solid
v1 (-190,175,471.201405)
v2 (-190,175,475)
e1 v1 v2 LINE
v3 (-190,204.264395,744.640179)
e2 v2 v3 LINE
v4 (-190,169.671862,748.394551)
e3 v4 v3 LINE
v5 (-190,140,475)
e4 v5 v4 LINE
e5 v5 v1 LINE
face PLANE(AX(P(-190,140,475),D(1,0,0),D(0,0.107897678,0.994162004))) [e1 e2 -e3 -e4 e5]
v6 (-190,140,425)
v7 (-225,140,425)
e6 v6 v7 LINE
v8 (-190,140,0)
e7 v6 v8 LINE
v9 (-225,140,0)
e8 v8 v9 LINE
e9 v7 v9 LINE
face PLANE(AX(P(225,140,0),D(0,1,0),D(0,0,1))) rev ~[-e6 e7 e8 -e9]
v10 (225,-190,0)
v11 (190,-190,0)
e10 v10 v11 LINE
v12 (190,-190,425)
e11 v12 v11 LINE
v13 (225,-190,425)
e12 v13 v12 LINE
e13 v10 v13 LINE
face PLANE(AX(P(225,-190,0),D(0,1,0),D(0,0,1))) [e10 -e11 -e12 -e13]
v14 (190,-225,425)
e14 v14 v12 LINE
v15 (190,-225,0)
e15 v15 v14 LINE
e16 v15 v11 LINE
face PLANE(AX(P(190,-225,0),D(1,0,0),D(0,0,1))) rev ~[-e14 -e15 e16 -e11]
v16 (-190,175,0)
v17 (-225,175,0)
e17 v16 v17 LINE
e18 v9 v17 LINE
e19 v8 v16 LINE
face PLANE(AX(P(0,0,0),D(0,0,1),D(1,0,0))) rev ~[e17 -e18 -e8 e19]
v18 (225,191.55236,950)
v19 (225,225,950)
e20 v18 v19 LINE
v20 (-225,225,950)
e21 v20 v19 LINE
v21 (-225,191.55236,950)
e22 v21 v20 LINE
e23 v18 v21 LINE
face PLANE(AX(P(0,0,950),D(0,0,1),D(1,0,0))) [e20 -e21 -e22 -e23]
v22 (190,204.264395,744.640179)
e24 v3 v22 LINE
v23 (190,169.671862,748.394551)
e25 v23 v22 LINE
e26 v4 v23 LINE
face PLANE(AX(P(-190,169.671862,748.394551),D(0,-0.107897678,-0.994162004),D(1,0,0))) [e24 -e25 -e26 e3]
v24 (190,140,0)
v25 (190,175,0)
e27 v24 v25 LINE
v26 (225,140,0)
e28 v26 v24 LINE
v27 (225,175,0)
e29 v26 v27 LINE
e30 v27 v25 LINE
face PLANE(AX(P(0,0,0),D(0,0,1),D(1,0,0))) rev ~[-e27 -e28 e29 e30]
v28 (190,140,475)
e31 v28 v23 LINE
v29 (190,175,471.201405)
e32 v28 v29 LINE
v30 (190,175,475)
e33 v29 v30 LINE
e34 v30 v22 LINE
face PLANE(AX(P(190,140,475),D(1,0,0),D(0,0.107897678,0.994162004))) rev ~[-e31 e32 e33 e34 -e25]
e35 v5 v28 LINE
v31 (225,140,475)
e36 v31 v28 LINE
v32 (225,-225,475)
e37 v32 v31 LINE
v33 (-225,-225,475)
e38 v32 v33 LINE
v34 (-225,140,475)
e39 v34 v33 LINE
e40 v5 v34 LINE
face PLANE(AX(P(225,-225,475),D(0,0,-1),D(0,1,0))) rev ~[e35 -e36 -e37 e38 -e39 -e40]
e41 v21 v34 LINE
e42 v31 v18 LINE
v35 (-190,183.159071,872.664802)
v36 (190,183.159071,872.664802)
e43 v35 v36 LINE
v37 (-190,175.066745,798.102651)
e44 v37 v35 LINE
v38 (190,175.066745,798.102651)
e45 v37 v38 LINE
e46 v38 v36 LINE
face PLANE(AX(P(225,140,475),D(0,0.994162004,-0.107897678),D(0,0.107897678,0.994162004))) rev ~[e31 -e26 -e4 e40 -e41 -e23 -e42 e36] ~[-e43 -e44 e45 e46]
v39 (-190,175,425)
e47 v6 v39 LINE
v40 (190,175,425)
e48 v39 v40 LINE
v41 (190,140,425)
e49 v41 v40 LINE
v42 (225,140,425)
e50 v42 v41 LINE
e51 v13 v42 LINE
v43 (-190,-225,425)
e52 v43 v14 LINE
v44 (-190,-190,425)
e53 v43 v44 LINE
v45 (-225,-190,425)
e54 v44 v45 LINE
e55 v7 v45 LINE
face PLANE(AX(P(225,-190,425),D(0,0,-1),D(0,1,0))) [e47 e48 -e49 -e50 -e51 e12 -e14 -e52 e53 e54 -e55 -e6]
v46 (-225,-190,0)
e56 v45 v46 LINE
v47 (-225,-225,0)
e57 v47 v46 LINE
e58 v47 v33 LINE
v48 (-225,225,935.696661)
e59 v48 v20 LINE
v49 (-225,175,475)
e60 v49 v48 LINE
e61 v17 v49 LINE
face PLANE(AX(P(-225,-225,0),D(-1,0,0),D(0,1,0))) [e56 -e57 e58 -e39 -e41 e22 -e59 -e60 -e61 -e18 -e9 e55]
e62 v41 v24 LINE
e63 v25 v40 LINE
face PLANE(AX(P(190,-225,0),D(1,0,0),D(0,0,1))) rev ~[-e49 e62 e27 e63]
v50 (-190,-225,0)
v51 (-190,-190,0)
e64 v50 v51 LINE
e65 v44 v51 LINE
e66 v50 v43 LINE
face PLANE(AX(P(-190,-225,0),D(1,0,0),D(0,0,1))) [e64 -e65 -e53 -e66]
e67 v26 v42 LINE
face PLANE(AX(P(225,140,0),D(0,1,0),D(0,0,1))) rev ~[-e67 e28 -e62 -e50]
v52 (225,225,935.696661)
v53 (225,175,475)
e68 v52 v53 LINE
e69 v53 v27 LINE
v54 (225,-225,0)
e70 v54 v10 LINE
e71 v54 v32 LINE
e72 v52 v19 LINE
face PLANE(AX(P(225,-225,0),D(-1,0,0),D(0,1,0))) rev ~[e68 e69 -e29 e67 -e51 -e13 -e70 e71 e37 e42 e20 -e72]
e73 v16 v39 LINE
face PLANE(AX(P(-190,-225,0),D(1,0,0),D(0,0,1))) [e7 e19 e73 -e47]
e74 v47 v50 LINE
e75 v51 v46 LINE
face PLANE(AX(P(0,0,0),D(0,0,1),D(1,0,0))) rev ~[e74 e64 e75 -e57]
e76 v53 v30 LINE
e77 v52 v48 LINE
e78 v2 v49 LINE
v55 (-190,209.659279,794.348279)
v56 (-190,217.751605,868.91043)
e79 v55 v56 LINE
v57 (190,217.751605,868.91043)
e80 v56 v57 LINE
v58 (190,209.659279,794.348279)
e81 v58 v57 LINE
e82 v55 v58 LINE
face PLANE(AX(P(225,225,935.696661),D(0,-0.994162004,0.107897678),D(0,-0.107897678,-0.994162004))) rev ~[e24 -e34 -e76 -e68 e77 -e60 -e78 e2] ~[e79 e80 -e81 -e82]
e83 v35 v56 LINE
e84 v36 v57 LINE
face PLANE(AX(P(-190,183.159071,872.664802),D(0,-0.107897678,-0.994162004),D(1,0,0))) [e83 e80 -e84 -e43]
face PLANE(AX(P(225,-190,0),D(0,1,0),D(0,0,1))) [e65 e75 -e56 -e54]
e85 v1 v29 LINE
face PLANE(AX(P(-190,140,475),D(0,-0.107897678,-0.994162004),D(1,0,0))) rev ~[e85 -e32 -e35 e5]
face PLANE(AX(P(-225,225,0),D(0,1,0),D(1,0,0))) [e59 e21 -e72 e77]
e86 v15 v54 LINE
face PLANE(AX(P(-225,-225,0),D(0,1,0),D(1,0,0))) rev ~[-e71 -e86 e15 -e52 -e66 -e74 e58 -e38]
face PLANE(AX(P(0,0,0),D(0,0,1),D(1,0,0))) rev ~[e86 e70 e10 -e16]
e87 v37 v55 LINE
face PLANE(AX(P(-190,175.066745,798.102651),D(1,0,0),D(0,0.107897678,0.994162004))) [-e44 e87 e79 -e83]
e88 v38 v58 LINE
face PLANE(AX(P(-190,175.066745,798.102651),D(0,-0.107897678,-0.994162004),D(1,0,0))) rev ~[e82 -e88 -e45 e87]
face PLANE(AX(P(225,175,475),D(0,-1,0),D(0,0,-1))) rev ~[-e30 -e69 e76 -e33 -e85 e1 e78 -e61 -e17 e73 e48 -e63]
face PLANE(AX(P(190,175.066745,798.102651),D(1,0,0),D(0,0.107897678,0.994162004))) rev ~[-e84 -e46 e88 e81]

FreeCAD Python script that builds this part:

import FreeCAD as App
import Part
import Sketcher

V = App.Vector

doc = App.newDocument("Part")
body = doc.addObject("PartDesign::Body", "Body")

# Sketch on XY plane
sketch1 = body.newObject("Sketcher::SketchObject", "Sketch")
sketch1.AttachmentSupport = (doc.getObject("XY_Plane"), [""])
sketch1.MapMode = "FlatFace"
sketch1.addGeometry([
    Part.LineSegment(V(-225, 225, 0), V(-225, -225, 0)),
    Part.LineSegment(V(-225, -225, 0), V(225, -225, 0)),
    Part.LineSegment(V(225, -225, 0), V(225, 225, 0)),
    Part.LineSegment(V(225, 225, 0), V(-225, 225, 0)),
], False)
sketch1.addConstraint([
    Sketcher.Constraint("Coincident", 0, 2, 1, 1),
    Sketcher.Constraint("Coincident", 1, 2, 2, 1),
    Sketcher.Constraint("Coincident", 2, 2, 3, 1),
    Sketcher.Constraint("Coincident", 3, 2, 0, 1),
    Sketcher.Constraint("Vertical", 0),
    Sketcher.Constraint("Horizontal", 1),
    Sketcher.Constraint("Vertical", 2),
    Sketcher.Constraint("Horizontal", 3),
    Sketcher.Constraint("Symmetric", 0, 2, 2, 2, -1, 1),
    Sketcher.Constraint("Equal", 3, 0),
    Sketcher.Constraint("DistanceX", 1, 1, 1, 2, 450.0),
])
pad1 = body.newObject("PartDesign::Pad", "Pad")
pad1.Profile = sketch1
pad1.Length = 950

# Sketch on YZ plane
sketch2 = body.newObject("Sketcher::SketchObject", "Sketch001")
sketch2.AttachmentSupport = (doc.getObject("YZ_Plane"), [""])
sketch2.MapMode = "FlatFace"
sketch2.AttachmentOffset = App.Placement(V(0, 0, 225), App.Rotation())
sketch2.addGeometry([
    Part.LineSegment(V(-225, 950, 0), V(-225, 475, 0)),  # 0
    Part.LineSegment(V(-225, 475, 0), V(140, 475, 0)),  # 1
    Part.LineSegment(V(140, 475, 0), V(192, 950, 0)),  # 2
    Part.LineSegment(V(192, 950, 0), V(-225, 950, 0)),  # 3
    Part.LineSegment(V(225, 936, 0), V(175, 475, 0)),  # 4
    Part.LineSegment(V(175, 475, 0), V(175, 0, 0)),  # 5
    Part.LineSegment(V(175, 0, 0), V(225, 0, 0)),  # 6
    Part.LineSegment(V(225, 0, 0), V(225, 936, 0)),  # 7
    Part.LineSegment(V(-190, 425, 0), V(-190, 0, 0)),  # 8
    Part.LineSegment(V(-190, 0, 0), V(140, 0, 0)),  # 9
    Part.LineSegment(V(140, 0, 0), V(140, 425, 0)),  # 10
    Part.LineSegment(V(140, 425, 0), V(-190, 425, 0)),  # 11
], False)
sketch2.addConstraint([
    Sketcher.Constraint("Coincident", 0, 2, 1, 1),
    Sketcher.Constraint("Coincident", 1, 2, 2, 1),
    Sketcher.Constraint("Coincident", 2, 2, 3, 1),
    Sketcher.Constraint("Coincident", 3, 2, 0, 1),
    Sketcher.Constraint("Coincident", 4, 2, 5, 1),
    Sketcher.Constraint("Coincident", 5, 2, 6, 1),
    Sketcher.Constraint("Coincident", 6, 2, 7, 1),
    Sketcher.Constraint("Coincident", 7, 2, 4, 1),
    Sketcher.Constraint("Coincident", 8, 2, 9, 1),
    Sketcher.Constraint("Coincident", 9, 2, 10, 1),
    Sketcher.Constraint("Coincident", 10, 2, 11, 1),
    Sketcher.Constraint("Coincident", 11, 2, 8, 1),
    Sketcher.Constraint("Vertical", 0),
    Sketcher.Constraint("Horizontal", 1),
    Sketcher.Constraint("Horizontal", 3),
    Sketcher.Constraint("Vertical", 5),
    Sketcher.Constraint("Horizontal", 6),
    Sketcher.Constraint("Vertical", 7),
    Sketcher.Constraint("Vertical", 8),
    Sketcher.Constraint("Horizontal", 9),
    Sketcher.Constraint("Vertical", 10),
    Sketcher.Constraint("Horizontal", 11),
    Sketcher.Constraint("PointOnObject", 5, 2, -1),
    Sketcher.Constraint("PointOnObject", 8, 2, -1),
    Sketcher.Constraint("Parallel", 2, 4),
    Sketcher.Constraint("Horizontal", 1, 2, 4, 2),
    Sketcher.Constraint("Vertical", 1, 2, 9, 2),
    Sketcher.Constraint("Equal", 0, 5),
    Sketcher.Constraint("DistanceX", 1, 1, 1, 2, 365.0),
    Sketcher.Constraint("DistanceX", 6, 1, 6, 2, 50.0),
    Sketcher.Constraint("DistanceX", 9, 1, 9, 2, 330.0),
    Sketcher.Constraint("DistanceY", 0, 2, 0, 1, 475.0),
    Sketcher.Constraint("DistanceY", 8, 2, 8, 1, 425.0),
    Sketcher.Constraint("DistanceX", 0, 2, -1, 1, 225.0),
    Sketcher.Constraint("DistanceX", -1, 1, 4, 2, 175.0),
    Sketcher.Constraint("Distance", 4, 463.402),
])
pocket1 = body.newObject("PartDesign::Pocket", "Pocket")
pocket1.Profile = sketch2
pocket1.Type = "ThroughAll"

# Sketch on XZ plane
sketch3 = body.newObject("Sketcher::SketchObject", "Sketch002")
sketch3.AttachmentSupport = (doc.getObject("XZ_Plane"), [""])
sketch3.MapMode = "FlatFace"
sketch3.AttachmentOffset = App.Placement(V(0, 0, 225), App.Rotation())
sketch3.addGeometry([
    Part.LineSegment(V(-190, 425, 0), V(-190, 0, 0)),
    Part.LineSegment(V(-190, 0, 0), V(190, 0, 0)),
    Part.LineSegment(V(190, 0, 0), V(190, 425, 0)),
    Part.LineSegment(V(190, 425, 0), V(-190, 425, 0)),
], False)
sketch3.addConstraint([
    Sketcher.Constraint("Coincident", 0, 2, 1, 1),
    Sketcher.Constraint("Coincident", 1, 2, 2, 1),
    Sketcher.Constraint("Coincident", 2, 2, 3, 1),
    Sketcher.Constraint("Coincident", 3, 2, 0, 1),
    Sketcher.Constraint("Vertical", 0),
    Sketcher.Constraint("Horizontal", 1),
    Sketcher.Constraint("Vertical", 2),
    Sketcher.Constraint("Horizontal", 3),
    Sketcher.Constraint("Symmetric", 0, 2, 1, 2, -1, 1),
    Sketcher.Constraint("DistanceX", 1, 1, 1, 2, 380.0),
    Sketcher.Constraint("DistanceY", 0, 2, 0, 1, 425.0),
])
pocket2 = body.newObject("PartDesign::Pocket", "Pocket001")
pocket2.Profile = sketch3
pocket2.Type = "ThroughAll"

# Sketch on an angled plane
sketch4 = body.newObject("Sketcher::SketchObject", "Sketch003")
sketch4.Placement = App.Placement(V(0, 87.417941, -9.487581), App.Rotation(V(1, 0, 0), V(0, 0.107897678, 0.994162004), V(0, -0.994162004, 0.107897678), "ZXY"))
sketch4.addGeometry([
    Part.LineSegment(V(-190, 887, 0), V(-190, 812, 0)),  # 0
    Part.LineSegment(V(-190, 812, 0), V(190, 812, 0)),  # 1
    Part.LineSegment(V(190, 812, 0), V(190, 887, 0)),  # 2
    Part.LineSegment(V(190, 887, 0), V(-190, 887, 0)),  # 3
    Part.LineSegment(V(-190, 762, 0), V(-190, 487, 0)),  # 4
    Part.LineSegment(V(-190, 487, 0), V(190, 487, 0)),  # 5
    Part.LineSegment(V(190, 487, 0), V(190, 762, 0)),  # 6
    Part.LineSegment(V(190, 762, 0), V(-190, 762, 0)),  # 7
], False)
sketch4.addConstraint([
    Sketcher.Constraint("Coincident", 0, 2, 1, 1),
    Sketcher.Constraint("Coincident", 1, 2, 2, 1),
    Sketcher.Constraint("Coincident", 2, 2, 3, 1),
    Sketcher.Constraint("Coincident", 3, 2, 0, 1),
    Sketcher.Constraint("Coincident", 4, 2, 5, 1),
    Sketcher.Constraint("Coincident", 5, 2, 6, 1),
    Sketcher.Constraint("Coincident", 6, 2, 7, 1),
    Sketcher.Constraint("Coincident", 7, 2, 4, 1),
    Sketcher.Constraint("Vertical", 0),
    Sketcher.Constraint("Horizontal", 1),
    Sketcher.Constraint("Vertical", 2),
    Sketcher.Constraint("Horizontal", 3),
    Sketcher.Constraint("Vertical", 4),
    Sketcher.Constraint("Horizontal", 5),
    Sketcher.Constraint("Vertical", 6),
    Sketcher.Constraint("Horizontal", 7),
    Sketcher.Constraint("Vertical", 3, 2, 4, 2),
    Sketcher.Constraint("Vertical", 2, 2, 5, 2),
    Sketcher.Constraint("DistanceX", 1, 1, 1, 2, 380.0),
    Sketcher.Constraint("DistanceY", 0, 2, 0, 1, 75.0),
    Sketcher.Constraint("DistanceY", 4, 2, 4, 1, 275.0),
    Sketcher.Constraint("DistanceX", 0, 2, -1, 1, 190.0),
    Sketcher.Constraint("DistanceY", 4, 2, 0, 2, 325.0),
    Sketcher.Constraint("DistanceY", -1, 1, 0, 2, 812.332626),
])
pocket3 = body.newObject("PartDesign::Pocket", "Pocket002")
pocket3.Profile = sketch4
pocket3.Type = "ThroughAll"

doc.recompute()
